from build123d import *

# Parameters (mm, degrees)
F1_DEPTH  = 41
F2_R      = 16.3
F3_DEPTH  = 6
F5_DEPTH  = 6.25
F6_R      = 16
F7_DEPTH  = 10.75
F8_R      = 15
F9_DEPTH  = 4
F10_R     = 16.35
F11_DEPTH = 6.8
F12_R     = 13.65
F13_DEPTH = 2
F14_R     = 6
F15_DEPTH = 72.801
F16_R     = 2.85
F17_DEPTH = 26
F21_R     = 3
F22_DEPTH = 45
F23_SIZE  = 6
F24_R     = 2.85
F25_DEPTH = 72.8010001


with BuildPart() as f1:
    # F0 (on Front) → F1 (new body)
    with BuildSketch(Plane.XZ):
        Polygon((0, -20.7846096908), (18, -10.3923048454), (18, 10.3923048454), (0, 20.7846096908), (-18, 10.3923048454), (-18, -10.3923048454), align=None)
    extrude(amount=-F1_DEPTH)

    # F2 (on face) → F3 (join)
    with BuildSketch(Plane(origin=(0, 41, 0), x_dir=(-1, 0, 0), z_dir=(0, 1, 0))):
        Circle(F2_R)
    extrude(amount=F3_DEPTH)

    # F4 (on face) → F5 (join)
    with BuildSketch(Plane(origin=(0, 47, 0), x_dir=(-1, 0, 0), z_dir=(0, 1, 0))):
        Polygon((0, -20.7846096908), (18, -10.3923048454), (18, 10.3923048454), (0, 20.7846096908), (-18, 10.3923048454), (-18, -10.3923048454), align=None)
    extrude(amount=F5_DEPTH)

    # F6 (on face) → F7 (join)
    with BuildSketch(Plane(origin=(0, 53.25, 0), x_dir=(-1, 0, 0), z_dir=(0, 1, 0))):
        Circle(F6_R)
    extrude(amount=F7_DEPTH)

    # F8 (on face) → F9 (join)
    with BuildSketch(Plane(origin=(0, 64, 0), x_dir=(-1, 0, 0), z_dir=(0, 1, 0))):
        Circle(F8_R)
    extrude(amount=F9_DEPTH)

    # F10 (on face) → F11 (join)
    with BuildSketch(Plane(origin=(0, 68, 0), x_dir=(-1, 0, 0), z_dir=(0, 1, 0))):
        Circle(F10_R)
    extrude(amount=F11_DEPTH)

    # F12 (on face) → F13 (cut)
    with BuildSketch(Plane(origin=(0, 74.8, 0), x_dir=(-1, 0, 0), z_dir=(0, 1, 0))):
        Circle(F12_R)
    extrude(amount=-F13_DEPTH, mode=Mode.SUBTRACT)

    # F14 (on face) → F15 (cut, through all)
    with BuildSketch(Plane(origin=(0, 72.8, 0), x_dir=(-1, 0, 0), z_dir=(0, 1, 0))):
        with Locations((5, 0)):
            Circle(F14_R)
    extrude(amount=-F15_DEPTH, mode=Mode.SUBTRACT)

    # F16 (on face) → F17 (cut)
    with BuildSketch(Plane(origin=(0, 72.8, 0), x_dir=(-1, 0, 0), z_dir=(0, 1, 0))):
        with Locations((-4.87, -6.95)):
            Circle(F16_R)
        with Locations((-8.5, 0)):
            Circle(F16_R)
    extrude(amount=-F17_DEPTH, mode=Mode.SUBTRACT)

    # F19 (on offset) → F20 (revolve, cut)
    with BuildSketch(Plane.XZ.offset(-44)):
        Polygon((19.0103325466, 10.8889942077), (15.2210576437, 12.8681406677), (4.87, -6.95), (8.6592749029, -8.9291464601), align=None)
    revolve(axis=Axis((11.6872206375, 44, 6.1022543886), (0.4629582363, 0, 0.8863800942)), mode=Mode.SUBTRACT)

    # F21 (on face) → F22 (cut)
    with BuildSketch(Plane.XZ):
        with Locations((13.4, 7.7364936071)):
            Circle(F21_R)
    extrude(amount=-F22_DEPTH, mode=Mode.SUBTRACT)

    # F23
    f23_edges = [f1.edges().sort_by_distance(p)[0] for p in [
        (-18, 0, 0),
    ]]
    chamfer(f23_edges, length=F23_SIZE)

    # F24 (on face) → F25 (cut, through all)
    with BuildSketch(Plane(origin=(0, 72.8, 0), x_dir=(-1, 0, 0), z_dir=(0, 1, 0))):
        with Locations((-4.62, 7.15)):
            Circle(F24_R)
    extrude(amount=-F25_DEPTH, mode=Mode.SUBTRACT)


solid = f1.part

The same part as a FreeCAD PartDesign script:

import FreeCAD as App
import Part
import Sketcher
Q = App.Units.Quantity


def edges_at(feature, points):
    """Names of the edges that pass closest to the given points."""
    edges = feature.Shape.Edges
    near = lambda p: min(range(len(edges)), key=lambda i: edges[i].distToShape(Part.Vertex(*p))[0])
    return sorted({f"Edge{near(p) + 1}" for p in points})

doc = App.newDocument("Part")
body = doc.addObject("PartDesign::Body", "Body")

# Sketch on XZ plane
sketch1 = body.newObject("Sketcher::SketchObject", "Sketch")
sketch1.AttachmentSupport = (doc.getObject("XZ_Plane"), [""])
sketch1.MapMode = "FlatFace"
sketch1.addGeometry([
    Part.LineSegment(App.Vector(0, -21, 0), App.Vector(18, -10, 0)),  # 0
    Part.LineSegment(App.Vector(18, -10, 0), App.Vector(18, 10, 0)),  # 1
    Part.LineSegment(App.Vector(18, 10, 0), App.Vector(0, 21, 0)),  # 2
    Part.LineSegment(App.Vector(0, 21, 0), App.Vector(-18, 10, 0)),  # 3
    Part.LineSegment(App.Vector(-18, 10, 0), App.Vector(-18, -10, 0)),  # 4
    Part.LineSegment(App.Vector(-18, -10, 0), App.Vector(0, -21, 0)),  # 5
], False)
sketch1.addConstraint([
    Sketcher.Constraint("Coincident", 0, 2, 1, 1),
    Sketcher.Constraint("Coincident", 1, 2, 2, 1),
    Sketcher.Constraint("Coincident", 2, 2, 3, 1),
    Sketcher.Constraint("Coincident", 3, 2, 4, 1),
    Sketcher.Constraint("Coincident", 4, 2, 5, 1),
    Sketcher.Constraint("Coincident", 5, 2, 0, 1),
    Sketcher.Constraint("Vertical", 1),
    Sketcher.Constraint("Vertical", 4),
    Sketcher.Constraint("Symmetric", 0, 2, 3, 2, -1, 1),
    Sketcher.Constraint("Symmetric", 2, 2, 5, 2, -1, 1),
    Sketcher.Constraint("PointOnObject", 2, 2, -2),
    Sketcher.Constraint("Parallel", 2, 5),
    Sketcher.Constraint("Horizontal", 1, 2, 3, 2),
    Sketcher.Constraint("Angle", 0, Q("30 deg")),
    Sketcher.Constraint("DistanceX", -1, 1, 0, 2, Q("18 mm")),
    Sketcher.Constraint("DistanceY", 1, 1, 1, 2, Q("20.78461 mm")),
])
pad1 = body.newObject("PartDesign::Pad", "Pad")
pad1.Profile = sketch1
pad1.Length = 41
pad1.Reversed = True

# Sketch on XZ plane
sketch2 = body.newObject("Sketcher::SketchObject", "Sketch001")
sketch2.AttachmentSupport = (doc.getObject("XZ_Plane"), [""])
sketch2.MapMode = "FlatFace"
sketch2.AttachmentOffset = App.Placement(App.Vector(0, 0, -41), App.Rotation())
sketch2.addGeometry(Part.Circle(App.Vector(0, 0, 0), App.Vector(0, 0, 1), 16), False)
sketch2.addConstraint([
    Sketcher.Constraint("Coincident", 0, 3, -1, 1),
    Sketcher.Constraint("Diameter", 0, Q("32.6 mm")),
])
pad2 = body.newObject("PartDesign::Pad", "Pad001")
pad2.Profile = sketch2
pad2.Length = 6
pad2.Reversed = True

# Sketch on XZ plane
sketch3 = body.newObject("Sketcher::SketchObject", "Sketch002")
sketch3.AttachmentSupport = (doc.getObject("XZ_Plane"), [""])
sketch3.MapMode = "FlatFace"
sketch3.AttachmentOffset = App.Placement(App.Vector(0, 0, -47), App.Rotation())
sketch3.addGeometry([
    Part.LineSegment(App.Vector(0, -21, 0), App.Vector(-18, -10, 0)),  # 0
    Part.LineSegment(App.Vector(-18, -10, 0), App.Vector(-18, 10, 0)),  # 1
    Part.LineSegment(App.Vector(-18, 10, 0), App.Vector(0, 21, 0)),  # 2
    Part.LineSegment(App.Vector(0, 21, 0), App.Vector(18, 10, 0)),  # 3
    Part.LineSegment(App.Vector(18, 10, 0), App.Vector(18, -10, 0)),  # 4
    Part.LineSegment(App.Vector(18, -10, 0), App.Vector(0, -21, 0)),  # 5
], False)
sketch3.addConstraint([
    Sketcher.Constraint("Coincident", 0, 2, 1, 1),
    Sketcher.Constraint("Coincident", 1, 2, 2, 1),
    Sketcher.Constraint("Coincident", 2, 2, 3, 1),
    Sketcher.Constraint("Coincident", 3, 2, 4, 1),
    Sketcher.Constraint("Coincident", 4, 2, 5, 1),
    Sketcher.Constraint("Coincident", 5, 2, 0, 1),
    Sketcher.Constraint("Vertical", 1),
    Sketcher.Constraint("Vertical", 4),
    Sketcher.Constraint("Symmetric", 0, 2, 3, 2, -1, 1),
    Sketcher.Constraint("Symmetric", 2, 2, 5, 2, -1, 1),
    Sketcher.Constraint("PointOnObject", 2, 2, -2),
    Sketcher.Constraint("Parallel", 2, 5),
    Sketcher.Constraint("Horizontal", 1, 2, 3, 2),
    Sketcher.Constraint("Angle", 0, Q("150 deg")),
    Sketcher.Constraint("DistanceX", 0, 2, -1, 1, Q("18 mm")),
    Sketcher.Constraint("DistanceY", 1, 1, 1, 2, Q("20.78461 mm")),
])
pad3 = body.newObject("PartDesign::Pad", "Pad002")
pad3.Profile = sketch3
pad3.Length = 6.25
pad3.Reversed = True

# Sketch on XZ plane
sketch4 = body.newObject("Sketcher::SketchObject", "Sketch003")
sketch4.AttachmentSupport = (doc.getObject("XZ_Plane"), [""])
sketch4.MapMode = "FlatFace"
sketch4.AttachmentOffset = App.Placement(App.Vector(0, 0, -53.25), App.Rotation())
sketch4.addGeometry(Part.Circle(App.Vector(0, 0, 0), App.Vector(0, 0, 1), 16), False)
sketch4.addConstraint([
    Sketcher.Constraint("Coincident", 0, 3, -1, 1),
    Sketcher.Constraint("Diameter", 0, Q("32 mm")),
])
pad4 = body.newObject("PartDesign::Pad", "Pad003")
pad4.Profile = sketch4
pad4.Length = 10.75
pad4.Reversed = True

# Sketch on XZ plane
sketch5 = body.newObject("Sketcher::SketchObject", "Sketch004")
sketch5.AttachmentSupport = (doc.getObject("XZ_Plane"), [""])
sketch5.MapMode = "FlatFace"
sketch5.AttachmentOffset = App.Placement(App.Vector(0, 0, -64), App.Rotation())
sketch5.addGeometry(Part.Circle(App.Vector(0, 0, 0), App.Vector(0, 0, 1), 15), False)
sketch5.addConstraint([
    Sketcher.Constraint("Coincident", 0, 3, -1, 1),
    Sketcher.Constraint("Diameter", 0, Q("30 mm")),
])
pad5 = body.newObject("PartDesign::Pad", "Pad004")
pad5.Profile = sketch5
pad5.Length = 4
pad5.Reversed = True

# Sketch on XZ plane
sketch6 = body.newObject("Sketcher::SketchObject", "Sketch005")
sketch6.AttachmentSupport = (doc.getObject("XZ_Plane"), [""])
sketch6.MapMode = "FlatFace"
sketch6.AttachmentOffset = App.Placement(App.Vector(0, 0, -68), App.Rotation())
sketch6.addGeometry(Part.Circle(App.Vector(0, 0, 0), App.Vector(0, 0, 1), 16), False)
sketch6.addConstraint([
    Sketcher.Constraint("Coincident", 0, 3, -1, 1),
    Sketcher.Constraint("Diameter", 0, Q("32.7 mm")),
])
pad6 = body.newObject("PartDesign::Pad", "Pad005")
pad6.Profile = sketch6
pad6.Length = 6.8
pad6.Reversed = True

# Sketch on XZ plane
sketch7 = body.newObject("Sketcher::SketchObject", "Sketch006")
sketch7.AttachmentSupport = (doc.getObject("XZ_Plane"), [""])
sketch7.MapMode = "FlatFace"
sketch7.AttachmentOffset = App.Placement(App.Vector(0, 0, -74.8), App.Rotation())
sketch7.addGeometry(Part.Circle(App.Vector(0, 0, 0), App.Vector(0, 0, 1), 14), False)
sketch7.addConstraint([
    Sketcher.Constraint("Coincident", 0, 3, -1, 1),
    Sketcher.Constraint("Diameter", 0, Q("27.3 mm")),
])
pocket1 = body.newObject("PartDesign::Pocket", "Pocket")
pocket1.Profile = sketch7
pocket1.Length = 2
pocket1.Reversed = True

# Sketch on XZ plane
sketch8 = body.newObject("Sketcher::SketchObject", "Sketch007")
sketch8.AttachmentSupport = (doc.getObject("XZ_Plane"), [""])
sketch8.MapMode = "FlatFace"
sketch8.AttachmentOffset = App.Placement(App.Vector(0, 0, -72.8), App.Rotation())
sketch8.addGeometry(Part.Circle(App.Vector(-5, 0, 0), App.Vector(0, 0, 1), 6), False)
sketch8.addConstraint([
    Sketcher.Constraint("PointOnObject", 0, 3, -1),
    Sketcher.Constraint("Diameter", 0, Q("12 mm")),
    Sketcher.Constraint("DistanceX", 0, 3, -1, 1, Q("5 mm")),
])
pocket2 = body.newObject("PartDesign::Pocket", "Pocket001")
pocket2.Profile = sketch8
pocket2.Type = "ThroughAll"
pocket2.Reversed = True

# Sketch on XZ plane
sketch9 = body.newObject("Sketcher::SketchObject", "Sketch008")
sketch9.AttachmentSupport = (doc.getObject("XZ_Plane"), [""])
sketch9.MapMode = "FlatFace"
sketch9.AttachmentOffset = App.Placement(App.Vector(0, 0, -72.8), App.Rotation())
sketch9.addGeometry([
    Part.Circle(App.Vector(4.9, -7, 0), App.Vector(0, 0, 1), 2.9),
    Part.Circle(App.Vector(8.5, 0, 0), App.Vector(0, 0, 1), 2.9),
], False)
sketch9.addConstraint([
    Sketcher.Constraint("Equal", 0, 1),
    Sketcher.Constraint("PointOnObject", 1, 3, -1),
    Sketcher.Constraint("Diameter", 0, Q("5.7 mm")),
    Sketcher.Constraint("DistanceX", -1, 1, 1, 3, Q("8.5 mm")),
    Sketcher.Constraint("DistanceX", -1, 1, 0, 3, Q("4.87 mm")),
    Sketcher.Constraint("DistanceY", 0, 3, -1, 1, Q("6.95 mm")),
])
pocket3 = body.newObject("PartDesign::Pocket", "Pocket002")
pocket3.Profile = sketch9
pocket3.Length = 26
pocket3.Reversed = True

# Sketch on XZ plane
sketch10 = body.newObject("Sketcher::SketchObject", "Sketch009")
sketch10.AttachmentSupport = (doc.getObject("XZ_Plane"), [""])
sketch10.MapMode = "FlatFace"
sketch10.AttachmentOffset = App.Placement(App.Vector(0, 0, -44), App.Rotation())
sketch10.addGeometry([
    Part.LineSegment(App.Vector(19, 10.9, 0), App.Vector(15.2, 12.9, 0)),
    Part.LineSegment(App.Vector(15.2, 12.9, 0), App.Vector(4.9, -7, 0)),
    Part.LineSegment(App.Vector(4.9, -7, 0), App.Vector(8.7, -8.9, 0)),
    Part.LineSegment(App.Vector(8.7, -8.9, 0), App.Vector(19, 10.9, 0)),
], False)
sketch10.addGeometry(Part.LineSegment(App.Vector(4.9, -6.9, 0), App.Vector(15.2, 12.9, 0)), True)  # axis
sketch10.addConstraint([
    Sketcher.Constraint("Coincident", 0, 2, 1, 1),
    Sketcher.Constraint("Coincident", 1, 2, 2, 1),
    Sketcher.Constraint("Coincident", 2, 2, 3, 1),
    Sketcher.Constraint("Coincident", 3, 2, 0, 1),
    Sketcher.Constraint("Coincident", 4, 1, 1, 2),
    Sketcher.Constraint("Coincident", 4, 2, 0, 2),
    Sketcher.Constraint("Perpendicular", 0, 1),
    Sketcher.Constraint("Perpendicular", 1, 2),
    Sketcher.Constraint("Perpendicular", 2, 3),
    Sketcher.Constraint("DistanceX", -1, 1, 1, 2, Q("4.87 mm")),
    Sketcher.Constraint("DistanceY", 1, 2, -1, 1, Q("6.95 mm")),
    Sketcher.Constraint("Distance", 0, Q("4.275 mm")),
    Sketcher.Constraint("DistanceY", -1, 1, 0, 2, Q("12.868141 mm")),
    Sketcher.Constraint("Distance", 1, Q("22.358513 mm")),
])
groove = body.newObject("PartDesign::Groove", "Groove")
groove.Profile = sketch10
groove.ReferenceAxis = (sketch10, ["Axis0"])
groove.Angle = 360

# Sketch on XZ plane
sketch11 = body.newObject("Sketcher::SketchObject", "Sketch010")
sketch11.AttachmentSupport = (doc.getObject("XZ_Plane"), [""])
sketch11.MapMode = "FlatFace"
sketch11.addGeometry(Part.Circle(App.Vector(13.4, 7.7, 0), App.Vector(0, 0, 1), 3), False)
sketch11.addConstraint([
    Sketcher.Constraint("Diameter", 0, Q("6 mm")),
    Sketcher.Constraint("DistanceX", -1, 1, 0, 3, Q("13.4 mm")),
    Sketcher.Constraint("DistanceY", -1, 1, 0, 3, Q("7.736494 mm")),
])
pocket4 = body.newObject("PartDesign::Pocket", "Pocket003")
pocket4.Profile = sketch11
pocket4.Length = 45
doc.recompute()

chamfer = body.newObject("PartDesign::Chamfer", "Chamfer")
chamfer.Base = (pocket4, edges_at(pocket4, [(-18, 0, 0)]))
chamfer.Size = 6

# Sketch on XZ plane
sketch12 = body.newObject("Sketcher::SketchObject", "Sketch011")
sketch12.AttachmentSupport = (doc.getObject("XZ_Plane"), [""])
sketch12.MapMode = "FlatFace"
sketch12.AttachmentOffset = App.Placement(App.Vector(0, 0, -72.8), App.Rotation())
sketch12.addGeometry(Part.Circle(App.Vector(4.6, 7.2, 0), App.Vector(0, 0, 1), 2.9), False)
sketch12.addConstraint([
    Sketcher.Constraint("Diameter", 0, Q("5.7 mm")),
    Sketcher.Constraint("DistanceX", -1, 1, 0, 3, Q("4.62 mm")),
    Sketcher.Constraint("DistanceY", -1, 1, 0, 3, Q("7.15 mm")),
])
pocket5 = body.newObject("PartDesign::Pocket", "Pocket004")
pocket5.Profile = sketch12
pocket5.Type = "ThroughAll"
pocket5.Reversed = True

doc.recompute()
